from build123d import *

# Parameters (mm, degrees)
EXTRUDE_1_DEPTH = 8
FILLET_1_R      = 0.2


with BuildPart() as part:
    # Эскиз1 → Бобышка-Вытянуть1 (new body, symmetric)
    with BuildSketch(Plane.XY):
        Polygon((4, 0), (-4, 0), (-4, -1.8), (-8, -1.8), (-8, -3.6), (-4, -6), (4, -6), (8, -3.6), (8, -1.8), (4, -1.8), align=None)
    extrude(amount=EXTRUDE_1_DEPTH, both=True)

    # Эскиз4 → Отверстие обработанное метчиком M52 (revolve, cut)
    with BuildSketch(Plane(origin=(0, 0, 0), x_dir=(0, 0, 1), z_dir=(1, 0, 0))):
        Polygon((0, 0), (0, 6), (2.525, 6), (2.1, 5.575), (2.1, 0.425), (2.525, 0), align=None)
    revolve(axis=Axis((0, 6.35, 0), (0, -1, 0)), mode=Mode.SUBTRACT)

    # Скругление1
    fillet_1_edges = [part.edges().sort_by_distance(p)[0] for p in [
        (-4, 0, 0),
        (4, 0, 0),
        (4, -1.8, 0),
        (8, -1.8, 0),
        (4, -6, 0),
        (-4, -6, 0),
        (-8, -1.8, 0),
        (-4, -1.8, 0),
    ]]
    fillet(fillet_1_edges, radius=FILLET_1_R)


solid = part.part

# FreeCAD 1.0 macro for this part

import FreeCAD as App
import Part
import Sketcher
from FreeCAD import Vector


def edges_at(feature, points):
    """Names of the edges that pass closest to the given points."""
    edges = feature.Shape.Edges
    near = lambda p: min(range(len(edges)), key=lambda i: edges[i].distToShape(Part.Vertex(*p))[0])
    return sorted({f"Edge{near(p) + 1}" for p in points})

doc = App.newDocument("Part")
params = doc.addObject("Spreadsheet::Sheet", "Params")
for row, (alias, value) in enumerate([
    ("sketch1_width", "8 mm"),
    ("sketch1_width2", "4 mm"),
    ("sketch1_height", "1.8 mm"),
    ("pad1_length", "16 mm"),
    ("sketch2_width", "6 mm"),
    ("sketch2_width2", "5.15 mm"),
    ("groove_angle", "360 deg"),
    ("fillet_radius", "0.2 mm"),
], start=1):
    params.set(f"A{row}", alias)
    params.set(f"B{row}", "=" + value)
    params.setAlias(f"B{row}", alias)

body = doc.addObject("PartDesign::Body", "Body")

sketch1 = body.newObject("Sketcher::SketchObject", "Sketch")
sketch1.AttachmentSupport = (doc.getObject("XY_Plane"), [""])
sketch1.MapMode = "FlatFace"
sketch1.addGeometry([
    Part.LineSegment(Vector(4, 0, 0), Vector(-4, 0, 0)),
    Part.LineSegment(Vector(-4, 0, 0), Vector(-4, -1.8, 0)),
    Part.LineSegment(Vector(-4, -1.8, 0), Vector(-8, -1.8, 0)),
    Part.LineSegment(Vector(-8, -1.8, 0), Vector(-8, -3.6, 0)),
    Part.LineSegment(Vector(-8, -3.6, 0), Vector(-4, -6, 0)),
    Part.LineSegment(Vector(-4, -6, 0), Vector(4, -6, 0)),
    Part.LineSegment(Vector(4, -6, 0), Vector(8, -3.6, 0)),
    Part.LineSegment(Vector(8, -3.6, 0), Vector(8, -1.8, 0)),
    Part.LineSegment(Vector(8, -1.8, 0), Vector(4, -1.8, 0)),
    Part.LineSegment(Vector(4, -1.8, 0), Vector(4, 0, 0)),
], False)
sketch1.addConstraint([
    Sketcher.Constraint("Coincident", 0, 2, 1, 1),
    Sketcher.Constraint("Coincident", 1, 2, 2, 1),
    Sketcher.Constraint("Coincident", 2, 2, 3, 1),
    Sketcher.Constraint("Coincident", 3, 2, 4, 1),
    Sketcher.Constraint("Coincident", 4, 2, 5, 1),
    Sketcher.Constraint("Coincident", 5, 2, 6, 1),
    Sketcher.Constraint("Coincident", 6, 2, 7, 1),
    Sketcher.Constraint("Coincident", 7, 2, 8, 1),
    Sketcher.Constraint("Coincident", 8, 2, 9, 1),
    Sketcher.Constraint("Coincident", 9, 2, 0, 1),
    Sketcher.Constraint("Horizontal", 0),
    Sketcher.Constraint("Vertical", 1),
    Sketcher.Constraint("Horizontal", 2),
    Sketcher.Constraint("Vertical", 3),
    Sketcher.Constraint("Horizontal", 5),
    Sketcher.Constraint("Vertical", 7),
    Sketcher.Constraint("Horizontal", 8),
    Sketcher.Constraint("Vertical", 9),
    Sketcher.Constraint("Symmetric", 0, 2, 9, 2, -1, 1),
    Sketcher.Constraint("Symmetric", 3, 2, 6, 2, -2),
    Sketcher.Constraint("Horizontal", 2, 2, 7, 2),
    Sketcher.Constraint("Vertical", 1, 2, 4, 2),
    Sketcher.Constraint("Vertical", 5, 2, 8, 2),
    Sketcher.Constraint("Equal", 1, 3),
    Sketcher.Constraint("DistanceX", 0, 2, 0, 1, 8.0),
    Sketcher.Constraint("DistanceX", 2, 2, 2, 1, 4.0),
    Sketcher.Constraint("DistanceY", 1, 2, 1, 1, 1.8),
    Sketcher.Constraint("DistanceY", 4, 2, -1, 1, 6.0),
])
sketch1.setExpression("Constraints[24]", "Params.sketch1_width")
sketch1.setExpression("Constraints[25]", "Params.sketch1_width2")
sketch1.setExpression("Constraints[26]", "Params.sketch1_height")
pad1 = body.newObject("PartDesign::Pad", "Pad")
pad1.Profile = sketch1
pad1.setExpression("Length", "Params.pad1_length")
pad1.Midplane = True

sketch2 = body.newObject("Sketcher::SketchObject", "Sketch001")
sketch2.AttachmentSupport = (doc.getObject("YZ_Plane"), [""])
sketch2.MapMode = "FlatFace"
sketch2.addGeometry([
    Part.LineSegment(Vector(-6, 0, 0), Vector(0, 0, 0)),
    Part.LineSegment(Vector(0, 0, 0), Vector(0, 2.5, 0)),
    Part.LineSegment(Vector(0, 2.5, 0), Vector(-0.4, 2.1, 0)),
    Part.LineSegment(Vector(-0.4, 2.1, 0), Vector(-5.6, 2.1, 0)),
    Part.LineSegment(Vector(-5.6, 2.1, 0), Vector(-6, 2.5, 0)),
    Part.LineSegment(Vector(-6, 2.5, 0), Vector(-6, 0, 0)),
], False)
sketch2.addConstraint([
    Sketcher.Constraint("Coincident", 0, 2, 1, 1),
    Sketcher.Constraint("Coincident", 1, 2, 2, 1),
    Sketcher.Constraint("Coincident", 2, 2, 3, 1),
    Sketcher.Constraint("Coincident", 3, 2, 4, 1),
    Sketcher.Constraint("Coincident", 4, 2, 5, 1),
    Sketcher.Constraint("Coincident", 5, 2, 0, 1),
    Sketcher.Constraint("Horizontal", 0),
    Sketcher.Constraint("Vertical", 1),
    Sketcher.Constraint("Horizontal", 3),
    Sketcher.Constraint("Vertical", 5),
    Sketcher.Constraint("Coincident", 0, 2, -1, 1),
    Sketcher.Constraint("Perpendicular", 2, 4),
    Sketcher.Constraint("Horizontal", 1, 2, 4, 2),
    Sketcher.Constraint("Equal", 2, 4),
    Sketcher.Constraint("DistanceX", 0, 1, 0, 2, 6.0),
    Sketcher.Constraint("DistanceX", 3, 2, 3, 1, 5.15),
    Sketcher.Constraint("DistanceY", -1, 1, 2, 2, 2.1),
])
sketch2.setExpression("Constraints[14]", "Params.sketch2_width")
sketch2.setExpression("Constraints[15]", "Params.sketch2_width2")
groove = body.newObject("PartDesign::Groove", "Groove")
groove.Profile = sketch2
groove.ReferenceAxis = (sketch2, ["H_Axis"])
groove.setExpression("Angle", "Params.groove_angle")
doc.recompute()

fillet = body.newObject("PartDesign::Fillet", "Fillet")
fillet.Base = (groove, edges_at(groove, [
    (-4, 0, 0),
    (4, 0, 0),
    (4, -1.8, 0),
    (8, -1.8, 0),
    (4, -6, 0),
    (-4, -6, 0),
    (-8, -1.8, 0),
    (-4, -1.8, 0),
]))
fillet.setExpression("Radius", "Params.fillet_radius")

doc.recompute()
